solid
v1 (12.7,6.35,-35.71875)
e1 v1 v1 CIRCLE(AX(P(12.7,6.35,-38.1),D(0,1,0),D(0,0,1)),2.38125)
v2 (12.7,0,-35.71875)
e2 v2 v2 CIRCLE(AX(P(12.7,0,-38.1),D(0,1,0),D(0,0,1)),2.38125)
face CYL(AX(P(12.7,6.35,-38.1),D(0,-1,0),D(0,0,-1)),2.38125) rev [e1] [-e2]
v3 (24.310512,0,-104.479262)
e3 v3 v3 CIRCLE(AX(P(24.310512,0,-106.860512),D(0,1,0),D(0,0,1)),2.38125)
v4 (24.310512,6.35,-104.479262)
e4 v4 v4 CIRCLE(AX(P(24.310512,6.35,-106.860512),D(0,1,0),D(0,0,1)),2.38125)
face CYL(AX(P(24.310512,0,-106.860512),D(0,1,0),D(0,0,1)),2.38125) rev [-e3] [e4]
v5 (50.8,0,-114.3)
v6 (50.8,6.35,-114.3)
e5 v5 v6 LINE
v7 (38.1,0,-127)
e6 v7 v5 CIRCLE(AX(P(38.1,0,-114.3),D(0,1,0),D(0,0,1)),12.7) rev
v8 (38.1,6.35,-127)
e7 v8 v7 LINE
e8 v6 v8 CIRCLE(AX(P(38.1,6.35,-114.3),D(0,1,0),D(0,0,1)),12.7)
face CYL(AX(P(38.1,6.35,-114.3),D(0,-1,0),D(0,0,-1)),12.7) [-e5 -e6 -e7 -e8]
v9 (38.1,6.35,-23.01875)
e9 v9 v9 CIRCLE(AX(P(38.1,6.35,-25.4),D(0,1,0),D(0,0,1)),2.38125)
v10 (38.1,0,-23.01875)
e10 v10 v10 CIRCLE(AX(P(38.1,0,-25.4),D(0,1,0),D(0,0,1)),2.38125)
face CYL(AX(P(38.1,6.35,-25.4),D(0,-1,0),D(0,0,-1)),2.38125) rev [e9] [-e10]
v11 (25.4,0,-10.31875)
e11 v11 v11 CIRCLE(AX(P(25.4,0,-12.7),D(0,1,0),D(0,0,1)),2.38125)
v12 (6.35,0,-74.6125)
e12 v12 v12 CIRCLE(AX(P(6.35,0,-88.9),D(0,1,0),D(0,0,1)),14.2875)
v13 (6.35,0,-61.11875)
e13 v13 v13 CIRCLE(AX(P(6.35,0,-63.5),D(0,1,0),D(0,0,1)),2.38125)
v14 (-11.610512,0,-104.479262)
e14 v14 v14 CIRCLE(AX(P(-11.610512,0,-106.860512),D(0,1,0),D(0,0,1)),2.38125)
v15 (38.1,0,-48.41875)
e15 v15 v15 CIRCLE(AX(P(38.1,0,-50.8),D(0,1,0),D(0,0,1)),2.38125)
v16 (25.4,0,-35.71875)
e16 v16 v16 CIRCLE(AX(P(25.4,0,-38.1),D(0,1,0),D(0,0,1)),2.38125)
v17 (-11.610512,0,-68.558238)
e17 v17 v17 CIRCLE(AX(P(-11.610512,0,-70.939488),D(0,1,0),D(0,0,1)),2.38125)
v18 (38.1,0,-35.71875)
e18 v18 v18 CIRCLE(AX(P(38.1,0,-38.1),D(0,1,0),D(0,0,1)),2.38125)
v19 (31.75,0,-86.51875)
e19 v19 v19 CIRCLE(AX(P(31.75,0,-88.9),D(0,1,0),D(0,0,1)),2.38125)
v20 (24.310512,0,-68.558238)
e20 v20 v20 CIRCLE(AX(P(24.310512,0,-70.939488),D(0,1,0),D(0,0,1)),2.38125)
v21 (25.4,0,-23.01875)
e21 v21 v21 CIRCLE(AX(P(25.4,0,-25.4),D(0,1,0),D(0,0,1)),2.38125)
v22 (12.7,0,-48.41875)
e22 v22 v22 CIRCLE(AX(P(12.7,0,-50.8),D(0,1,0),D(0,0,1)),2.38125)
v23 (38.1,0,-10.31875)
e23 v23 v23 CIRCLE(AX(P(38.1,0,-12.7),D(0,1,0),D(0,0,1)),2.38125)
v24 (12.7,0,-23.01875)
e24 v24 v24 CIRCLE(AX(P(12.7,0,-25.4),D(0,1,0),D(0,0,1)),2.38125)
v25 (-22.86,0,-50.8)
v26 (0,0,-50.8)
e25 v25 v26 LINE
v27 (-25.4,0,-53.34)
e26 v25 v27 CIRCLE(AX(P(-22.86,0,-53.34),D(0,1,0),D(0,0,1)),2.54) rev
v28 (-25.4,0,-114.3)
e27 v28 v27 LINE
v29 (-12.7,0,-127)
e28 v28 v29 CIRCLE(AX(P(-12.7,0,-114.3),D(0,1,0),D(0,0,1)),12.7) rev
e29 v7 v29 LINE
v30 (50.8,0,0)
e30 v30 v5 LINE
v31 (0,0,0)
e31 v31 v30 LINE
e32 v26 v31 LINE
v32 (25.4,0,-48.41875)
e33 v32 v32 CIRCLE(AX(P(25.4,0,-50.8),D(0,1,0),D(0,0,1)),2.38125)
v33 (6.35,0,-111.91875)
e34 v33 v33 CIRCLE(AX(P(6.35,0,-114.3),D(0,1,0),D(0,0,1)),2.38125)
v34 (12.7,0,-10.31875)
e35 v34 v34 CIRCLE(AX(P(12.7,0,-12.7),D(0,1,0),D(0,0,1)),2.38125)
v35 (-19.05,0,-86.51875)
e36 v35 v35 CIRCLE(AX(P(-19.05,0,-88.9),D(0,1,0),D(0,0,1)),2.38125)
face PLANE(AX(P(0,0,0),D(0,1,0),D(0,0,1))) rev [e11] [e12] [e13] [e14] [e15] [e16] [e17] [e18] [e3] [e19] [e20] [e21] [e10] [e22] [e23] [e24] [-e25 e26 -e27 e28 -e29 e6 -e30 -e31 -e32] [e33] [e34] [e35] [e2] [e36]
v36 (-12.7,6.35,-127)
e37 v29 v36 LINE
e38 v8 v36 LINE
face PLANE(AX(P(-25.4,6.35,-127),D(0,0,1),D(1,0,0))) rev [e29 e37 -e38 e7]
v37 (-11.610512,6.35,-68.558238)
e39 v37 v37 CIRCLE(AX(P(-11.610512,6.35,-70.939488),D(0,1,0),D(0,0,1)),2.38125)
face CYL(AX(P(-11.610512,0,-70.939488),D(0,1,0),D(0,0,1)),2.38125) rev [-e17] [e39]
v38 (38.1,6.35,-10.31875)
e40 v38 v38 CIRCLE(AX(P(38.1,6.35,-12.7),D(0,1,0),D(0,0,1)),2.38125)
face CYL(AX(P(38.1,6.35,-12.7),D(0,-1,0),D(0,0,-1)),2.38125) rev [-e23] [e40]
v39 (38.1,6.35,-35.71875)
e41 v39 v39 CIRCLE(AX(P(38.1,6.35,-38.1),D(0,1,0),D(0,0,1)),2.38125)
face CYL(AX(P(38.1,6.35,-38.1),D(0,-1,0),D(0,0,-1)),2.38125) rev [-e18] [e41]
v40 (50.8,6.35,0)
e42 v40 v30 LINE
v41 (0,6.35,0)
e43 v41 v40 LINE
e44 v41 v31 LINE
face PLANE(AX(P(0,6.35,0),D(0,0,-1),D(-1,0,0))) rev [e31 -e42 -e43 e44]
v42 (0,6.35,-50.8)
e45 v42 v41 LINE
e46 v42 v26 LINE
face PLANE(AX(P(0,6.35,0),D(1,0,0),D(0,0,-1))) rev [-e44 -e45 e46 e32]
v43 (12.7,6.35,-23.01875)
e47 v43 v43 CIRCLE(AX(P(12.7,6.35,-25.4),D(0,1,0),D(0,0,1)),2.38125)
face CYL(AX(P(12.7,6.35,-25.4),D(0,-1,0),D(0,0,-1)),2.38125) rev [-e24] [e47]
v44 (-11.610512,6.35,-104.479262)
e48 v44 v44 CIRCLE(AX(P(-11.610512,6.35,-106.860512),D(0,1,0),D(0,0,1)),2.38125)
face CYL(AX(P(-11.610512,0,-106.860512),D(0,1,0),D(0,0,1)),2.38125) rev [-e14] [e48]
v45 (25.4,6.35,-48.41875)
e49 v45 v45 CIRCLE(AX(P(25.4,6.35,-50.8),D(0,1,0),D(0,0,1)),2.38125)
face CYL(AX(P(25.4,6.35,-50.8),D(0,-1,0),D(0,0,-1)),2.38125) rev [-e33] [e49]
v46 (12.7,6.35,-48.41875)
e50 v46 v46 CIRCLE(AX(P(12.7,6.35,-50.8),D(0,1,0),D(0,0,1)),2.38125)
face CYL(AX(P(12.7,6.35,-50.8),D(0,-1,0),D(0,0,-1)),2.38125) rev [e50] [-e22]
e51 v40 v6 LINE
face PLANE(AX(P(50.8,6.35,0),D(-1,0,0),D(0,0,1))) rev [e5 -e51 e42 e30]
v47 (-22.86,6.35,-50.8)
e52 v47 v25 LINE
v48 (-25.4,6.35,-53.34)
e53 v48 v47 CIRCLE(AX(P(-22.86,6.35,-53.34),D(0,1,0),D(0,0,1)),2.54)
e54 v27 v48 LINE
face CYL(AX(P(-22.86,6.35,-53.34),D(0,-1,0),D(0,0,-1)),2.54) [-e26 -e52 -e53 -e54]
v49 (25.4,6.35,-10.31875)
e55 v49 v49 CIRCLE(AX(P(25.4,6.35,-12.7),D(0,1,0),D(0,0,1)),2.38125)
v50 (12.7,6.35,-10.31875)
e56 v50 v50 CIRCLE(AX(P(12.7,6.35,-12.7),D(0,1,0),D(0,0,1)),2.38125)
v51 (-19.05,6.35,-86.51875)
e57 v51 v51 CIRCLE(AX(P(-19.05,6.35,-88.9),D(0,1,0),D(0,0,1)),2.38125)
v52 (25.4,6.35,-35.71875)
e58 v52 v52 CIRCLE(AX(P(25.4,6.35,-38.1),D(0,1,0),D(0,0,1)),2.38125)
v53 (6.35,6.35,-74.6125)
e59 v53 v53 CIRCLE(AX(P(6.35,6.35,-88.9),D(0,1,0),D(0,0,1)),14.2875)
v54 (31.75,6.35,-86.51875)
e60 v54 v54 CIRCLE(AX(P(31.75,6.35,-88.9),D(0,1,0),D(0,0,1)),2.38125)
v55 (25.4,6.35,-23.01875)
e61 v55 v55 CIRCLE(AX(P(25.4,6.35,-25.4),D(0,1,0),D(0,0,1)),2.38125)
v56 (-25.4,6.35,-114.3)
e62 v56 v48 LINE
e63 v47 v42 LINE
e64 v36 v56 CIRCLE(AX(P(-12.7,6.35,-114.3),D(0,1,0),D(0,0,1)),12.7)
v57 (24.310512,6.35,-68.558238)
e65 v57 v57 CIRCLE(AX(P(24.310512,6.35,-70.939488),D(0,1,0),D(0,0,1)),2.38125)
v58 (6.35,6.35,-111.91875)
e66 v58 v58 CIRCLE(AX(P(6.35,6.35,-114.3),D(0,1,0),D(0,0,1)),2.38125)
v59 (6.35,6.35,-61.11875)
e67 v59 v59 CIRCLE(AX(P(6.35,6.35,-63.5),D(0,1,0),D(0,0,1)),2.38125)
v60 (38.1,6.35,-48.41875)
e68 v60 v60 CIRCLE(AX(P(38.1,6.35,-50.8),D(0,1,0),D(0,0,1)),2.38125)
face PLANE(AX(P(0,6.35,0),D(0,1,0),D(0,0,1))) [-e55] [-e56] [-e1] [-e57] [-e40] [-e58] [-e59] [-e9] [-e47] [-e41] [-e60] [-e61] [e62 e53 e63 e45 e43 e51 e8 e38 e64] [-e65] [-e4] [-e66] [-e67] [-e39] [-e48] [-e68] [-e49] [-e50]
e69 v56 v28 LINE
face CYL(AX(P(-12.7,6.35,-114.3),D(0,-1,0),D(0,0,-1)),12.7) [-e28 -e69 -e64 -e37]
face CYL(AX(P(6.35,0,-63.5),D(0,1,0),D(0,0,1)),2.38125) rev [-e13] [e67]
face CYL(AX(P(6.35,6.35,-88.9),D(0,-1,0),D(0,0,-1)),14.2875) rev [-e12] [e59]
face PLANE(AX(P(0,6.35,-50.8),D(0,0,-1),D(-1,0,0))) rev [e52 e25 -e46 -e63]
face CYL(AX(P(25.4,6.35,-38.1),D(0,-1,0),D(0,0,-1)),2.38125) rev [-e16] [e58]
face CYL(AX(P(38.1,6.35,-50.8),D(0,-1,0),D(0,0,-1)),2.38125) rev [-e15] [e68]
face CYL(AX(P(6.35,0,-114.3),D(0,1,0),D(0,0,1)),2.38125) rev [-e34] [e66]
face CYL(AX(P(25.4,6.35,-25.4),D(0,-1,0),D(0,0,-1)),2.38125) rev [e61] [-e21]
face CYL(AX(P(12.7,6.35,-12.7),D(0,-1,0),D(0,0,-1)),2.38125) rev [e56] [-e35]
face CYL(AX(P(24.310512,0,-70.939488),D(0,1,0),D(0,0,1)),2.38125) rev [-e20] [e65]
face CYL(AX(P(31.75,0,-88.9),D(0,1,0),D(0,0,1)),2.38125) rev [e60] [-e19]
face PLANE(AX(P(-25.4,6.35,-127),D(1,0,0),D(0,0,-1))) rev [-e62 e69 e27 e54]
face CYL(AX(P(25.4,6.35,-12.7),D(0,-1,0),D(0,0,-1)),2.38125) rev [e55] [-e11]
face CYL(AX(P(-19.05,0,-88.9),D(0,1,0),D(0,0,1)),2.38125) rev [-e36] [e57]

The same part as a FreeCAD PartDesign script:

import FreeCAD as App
import Part
import Sketcher

V = App.Vector
Q = App.Units.Quantity


def edges_at(feature, points):
    """Names of the edges that pass closest to the given points."""
    edges = feature.Shape.Edges
    near = lambda p: min(range(len(edges)), key=lambda i: edges[i].distToShape(Part.Vertex(*p))[0])
    return sorted({f"Edge{near(p) + 1}" for p in points})


def add_polygon(sketch, points):
    """Adds a closed chain of lines whose ends are joined by coincident constraints."""
    first, n = sketch.GeometryCount, len(points)
    for a, b in zip(points, points[1:] + points[:1]):
        sketch.addGeometry(Part.LineSegment(App.Vector(*a, 0), App.Vector(*b, 0)), False)
    for i in range(n):
        sketch.addConstraint(Sketcher.Constraint("Coincident", first + i, 2, first + (i + 1) % n, 1))

doc = App.newDocument("Part")
body = doc.addObject("PartDesign::Body", "Body")

sketch1 = body.newObject("Sketcher::SketchObject", "Sketch")
sketch1.AttachmentSupport = (doc.getObject("XZ_Plane"), [""])
sketch1.MapMode = "FlatFace"
add_polygon(sketch1, [(0, 0), (50.8, 0), (50.8, -127), (-25.4, -127), (-25.4, -50.8), (0, -50.8)])
sketch1.addGeometry(Part.Circle(V(12.7, -12.7, 0), V(0, 0, 1), 2.38125), False)
sketch1.addGeometry(Part.Circle(V(12.7, -25.4, 0), V(0, 0, 1), 2.38125), False)
sketch1.addGeometry(Part.Circle(V(12.7, -38.1, 0), V(0, 0, 1), 2.38125), False)
sketch1.addGeometry(Part.Circle(V(12.7, -50.8, 0), V(0, 0, 1), 2.38125), False)
sketch1.addGeometry(Part.Circle(V(25.4, -12.7, 0), V(0, 0, 1), 2.38125), False)
sketch1.addGeometry(Part.Circle(V(25.4, -25.4, 0), V(0, 0, 1), 2.38125), False)
sketch1.addGeometry(Part.Circle(V(38.1, -12.7, 0), V(0, 0, 1), 2.38125), False)
sketch1.addGeometry(Part.Circle(V(38.1, -25.4, 0), V(0, 0, 1), 2.38125), False)
sketch1.addGeometry(Part.Circle(V(25.4, -38.1, 0), V(0, 0, 1), 2.38125), False)
sketch1.addGeometry(Part.Circle(V(25.4, -50.8, 0), V(0, 0, 1), 2.38125), False)
sketch1.addGeometry(Part.Circle(V(38.1, -38.1, 0), V(0, 0, 1), 2.38125), False)
sketch1.addGeometry(Part.Circle(V(38.1, -50.8, 0), V(0, 0, 1), 2.38125), False)
sketch1.addGeometry(Part.Circle(V(6.35, -88.9, 0), V(0, 0, 1), 14.2875), False)
sketch1.addConstraint([
    Sketcher.Constraint("Horizontal", 0),
    Sketcher.Constraint("Vertical", 1),
    Sketcher.Constraint("Horizontal", 2),
    Sketcher.Constraint("Vertical", 3),
    Sketcher.Constraint("Horizontal", 4),
    Sketcher.Constraint("Vertical", 5),
    Sketcher.Constraint("Coincident", 5, 2, -1, 1),
    Sketcher.Constraint("Equal", 6, 7),
    Sketcher.Constraint("Equal", 7, 8),
    Sketcher.Constraint("Equal", 8, 9),
    Sketcher.Constraint("Equal", 9, 10),
    Sketcher.Constraint("Equal", 10, 11),
    Sketcher.Constraint("Equal", 11, 12),
    Sketcher.Constraint("Equal", 12, 13),
    Sketcher.Constraint("Equal", 13, 14),
    Sketcher.Constraint("Equal", 14, 15),
    Sketcher.Constraint("Equal", 15, 16),
    Sketcher.Constraint("Equal", 16, 17),
    Sketcher.Constraint("Horizontal", 6, 3, 10, 3),
    Sketcher.Constraint("Horizontal", 7, 3, 11, 3),
    Sketcher.Constraint("Horizontal", 10, 3, 12, 3),
    Sketcher.Constraint("Horizontal", 11, 3, 13, 3),
    Sketcher.Constraint("Horizontal", 8, 3, 14, 3),
    Sketcher.Constraint("Horizontal", 9, 3, 15, 3),
    Sketcher.Constraint("Horizontal", 14, 3, 16, 3),
    Sketcher.Constraint("Horizontal", 15, 3, 17, 3),
    Sketcher.Constraint("Horizontal", 17, 3, 3, 2),
    Sketcher.Constraint("Vertical", 6, 3, 7, 3),
    Sketcher.Constraint("Vertical", 7, 3, 8, 3),
    Sketcher.Constraint("Vertical", 8, 3, 9, 3),
    Sketcher.Constraint("Vertical", 10, 3, 11, 3),
    Sketcher.Constraint("Vertical", 12, 3, 13, 3),
    Sketcher.Constraint("Vertical", 11, 3, 14, 3),
    Sketcher.Constraint("Vertical", 14, 3, 15, 3),
    Sketcher.Constraint("Vertical", 13, 3, 16, 3),
    Sketcher.Constraint("Vertical", 16, 3, 17, 3),
    Sketcher.Constraint("Equal", 2, 3),
    Sketcher.Constraint("Equal", 0, 5),
    Sketcher.Constraint("DistanceX", 0, 1, 0, 2, Q("2 in")),
    Sketcher.Constraint("DistanceX", 2, 2, 2, 1, Q("3 in")),
    Sketcher.Constraint("Diameter", 6, Q("0.1875 in")),
    Sketcher.Constraint("Diameter", 18, Q("1.125 in")),
    Sketcher.Constraint("DistanceY", 7, 3, -1, 1, Q("1 in")),
    Sketcher.Constraint("DistanceX", -1, 1, 10, 3, Q("1 in")),
    Sketcher.Constraint("DistanceY", 8, 3, 6, 3, Q("1 in")),
    Sketcher.Constraint("DistanceX", 6, 3, 12, 3, Q("1 in")),
    Sketcher.Constraint("DistanceY", 18, 3, 8, 3, Q("2 in")),
    Sketcher.Constraint("DistanceX", -1, 1, 6, 3, Q("0.5 in")),
    Sketcher.Constraint("DistanceY", 6, 3, -1, 1, Q("0.5 in")),
    Sketcher.Constraint("DistanceX", -1, 1, 18, 3, Q("0.25 in")),
])
pad1 = body.newObject("PartDesign::Pad", "Pad")
pad1.Profile = sketch1
pad1.Length = Q("0.25 in")
pad1.Reversed = True
doc.recompute()

fillet = body.newObject("PartDesign::Fillet", "Fillet")
fillet.Base = (pad1, edges_at(pad1, [(-25.4, 3.175, -127), (50.8, 3.175, -127)]))
fillet.Radius = Q("0.5 in")

sketch2 = body.newObject("Sketcher::SketchObject", "Sketch001")
sketch2.AttachmentSupport = (doc.getObject("XZ_Plane"), [""])
sketch2.MapMode = "FlatFace"
sketch2.AttachmentOffset = App.Placement(V(0, 0, -0.25 * 25.4), App.Rotation())
sketch2.addGeometry([
    Part.Circle(V(-19.05, -88.9, 0), V(0, 0, 1), 2.38125),
    Part.Circle(V(-11.610512, -106.860512, 0), V(0, 0, 1), 2.38125),
    Part.Circle(V(6.35, -114.3, 0), V(0, 0, 1), 2.38125),
    Part.Circle(V(24.310512, -106.860512, 0), V(0, 0, 1), 2.38125),
    Part.Circle(V(31.75, -88.9, 0), V(0, 0, 1), 2.38125),
    Part.Circle(V(24.310512, -70.939488, 0), V(0, 0, 1), 2.38125),
    Part.Circle(V(6.35, -63.5, 0), V(0, 0, 1), 2.38125),
    Part.Circle(V(-11.610512, -70.939488, 0), V(0, 0, 1), 2.38125),
], False)
sketch2.addConstraint([
    Sketcher.Constraint("Equal", 0, 1),
    Sketcher.Constraint("Equal", 1, 2),
    Sketcher.Constraint("Equal", 2, 3),
    Sketcher.Constraint("Equal", 3, 4),
    Sketcher.Constraint("Equal", 4, 5),
    Sketcher.Constraint("Equal", 5, 6),
    Sketcher.Constraint("Equal", 6, 7),
    Sketcher.Constraint("Horizontal", 1, 3, 3, 3),
    Sketcher.Constraint("Horizontal", 0, 3, 4, 3),
    Sketcher.Constraint("Horizontal", 5, 3, 7, 3),
    Sketcher.Constraint("Vertical", 3, 3, 5, 3),
    Sketcher.Constraint("Vertical", 2, 3, 6, 3),
    Sketcher.Constraint("Vertical", 1, 3, 7, 3),
    Sketcher.Constraint("Diameter", 0, Q("0.1875 in")),
    Sketcher.Constraint("DistanceX", 0, 3, 2, 3, Q("1 in")),
    Sketcher.Constraint("DistanceY", 2, 3, 0, 3, Q("1 in")),
    Sketcher.Constraint("DistanceX", 2, 3, 4, 3, Q("1 in")),
    Sketcher.Constraint("DistanceY", 0, 3, 6, 3, Q("1 in")),
    Sketcher.Constraint("DistanceY", 0, 3, -1, 1, Q("3.5 in")),
    Sketcher.Constraint("DistanceX", 0, 3, -1, 1, Q("0.75 in")),
    Sketcher.Constraint("DistanceX", 1, 3, -1, 1, Q("11.610512 mm")),
    Sketcher.Constraint("DistanceY", 1, 3, -1, 1, Q("106.860512 mm")),
    Sketcher.Constraint("DistanceX", -1, 1, 3, 3, Q("24.310512 mm")),
    Sketcher.Constraint("DistanceY", 5, 3, -1, 1, Q("70.939488 mm")),
])
pocket1 = body.newObject("PartDesign::Pocket", "Pocket")
pocket1.Profile = sketch2
pocket1.Type = "ThroughAll"
pocket1.Reversed = True
doc.recompute()

fillet2 = body.newObject("PartDesign::Fillet", "Fillet001")
fillet2.Base = (pocket1, edges_at(pocket1, [(-25.4, 3.175, -50.8)]))
fillet2.Radius = Q("0.1 in")

doc.recompute()
